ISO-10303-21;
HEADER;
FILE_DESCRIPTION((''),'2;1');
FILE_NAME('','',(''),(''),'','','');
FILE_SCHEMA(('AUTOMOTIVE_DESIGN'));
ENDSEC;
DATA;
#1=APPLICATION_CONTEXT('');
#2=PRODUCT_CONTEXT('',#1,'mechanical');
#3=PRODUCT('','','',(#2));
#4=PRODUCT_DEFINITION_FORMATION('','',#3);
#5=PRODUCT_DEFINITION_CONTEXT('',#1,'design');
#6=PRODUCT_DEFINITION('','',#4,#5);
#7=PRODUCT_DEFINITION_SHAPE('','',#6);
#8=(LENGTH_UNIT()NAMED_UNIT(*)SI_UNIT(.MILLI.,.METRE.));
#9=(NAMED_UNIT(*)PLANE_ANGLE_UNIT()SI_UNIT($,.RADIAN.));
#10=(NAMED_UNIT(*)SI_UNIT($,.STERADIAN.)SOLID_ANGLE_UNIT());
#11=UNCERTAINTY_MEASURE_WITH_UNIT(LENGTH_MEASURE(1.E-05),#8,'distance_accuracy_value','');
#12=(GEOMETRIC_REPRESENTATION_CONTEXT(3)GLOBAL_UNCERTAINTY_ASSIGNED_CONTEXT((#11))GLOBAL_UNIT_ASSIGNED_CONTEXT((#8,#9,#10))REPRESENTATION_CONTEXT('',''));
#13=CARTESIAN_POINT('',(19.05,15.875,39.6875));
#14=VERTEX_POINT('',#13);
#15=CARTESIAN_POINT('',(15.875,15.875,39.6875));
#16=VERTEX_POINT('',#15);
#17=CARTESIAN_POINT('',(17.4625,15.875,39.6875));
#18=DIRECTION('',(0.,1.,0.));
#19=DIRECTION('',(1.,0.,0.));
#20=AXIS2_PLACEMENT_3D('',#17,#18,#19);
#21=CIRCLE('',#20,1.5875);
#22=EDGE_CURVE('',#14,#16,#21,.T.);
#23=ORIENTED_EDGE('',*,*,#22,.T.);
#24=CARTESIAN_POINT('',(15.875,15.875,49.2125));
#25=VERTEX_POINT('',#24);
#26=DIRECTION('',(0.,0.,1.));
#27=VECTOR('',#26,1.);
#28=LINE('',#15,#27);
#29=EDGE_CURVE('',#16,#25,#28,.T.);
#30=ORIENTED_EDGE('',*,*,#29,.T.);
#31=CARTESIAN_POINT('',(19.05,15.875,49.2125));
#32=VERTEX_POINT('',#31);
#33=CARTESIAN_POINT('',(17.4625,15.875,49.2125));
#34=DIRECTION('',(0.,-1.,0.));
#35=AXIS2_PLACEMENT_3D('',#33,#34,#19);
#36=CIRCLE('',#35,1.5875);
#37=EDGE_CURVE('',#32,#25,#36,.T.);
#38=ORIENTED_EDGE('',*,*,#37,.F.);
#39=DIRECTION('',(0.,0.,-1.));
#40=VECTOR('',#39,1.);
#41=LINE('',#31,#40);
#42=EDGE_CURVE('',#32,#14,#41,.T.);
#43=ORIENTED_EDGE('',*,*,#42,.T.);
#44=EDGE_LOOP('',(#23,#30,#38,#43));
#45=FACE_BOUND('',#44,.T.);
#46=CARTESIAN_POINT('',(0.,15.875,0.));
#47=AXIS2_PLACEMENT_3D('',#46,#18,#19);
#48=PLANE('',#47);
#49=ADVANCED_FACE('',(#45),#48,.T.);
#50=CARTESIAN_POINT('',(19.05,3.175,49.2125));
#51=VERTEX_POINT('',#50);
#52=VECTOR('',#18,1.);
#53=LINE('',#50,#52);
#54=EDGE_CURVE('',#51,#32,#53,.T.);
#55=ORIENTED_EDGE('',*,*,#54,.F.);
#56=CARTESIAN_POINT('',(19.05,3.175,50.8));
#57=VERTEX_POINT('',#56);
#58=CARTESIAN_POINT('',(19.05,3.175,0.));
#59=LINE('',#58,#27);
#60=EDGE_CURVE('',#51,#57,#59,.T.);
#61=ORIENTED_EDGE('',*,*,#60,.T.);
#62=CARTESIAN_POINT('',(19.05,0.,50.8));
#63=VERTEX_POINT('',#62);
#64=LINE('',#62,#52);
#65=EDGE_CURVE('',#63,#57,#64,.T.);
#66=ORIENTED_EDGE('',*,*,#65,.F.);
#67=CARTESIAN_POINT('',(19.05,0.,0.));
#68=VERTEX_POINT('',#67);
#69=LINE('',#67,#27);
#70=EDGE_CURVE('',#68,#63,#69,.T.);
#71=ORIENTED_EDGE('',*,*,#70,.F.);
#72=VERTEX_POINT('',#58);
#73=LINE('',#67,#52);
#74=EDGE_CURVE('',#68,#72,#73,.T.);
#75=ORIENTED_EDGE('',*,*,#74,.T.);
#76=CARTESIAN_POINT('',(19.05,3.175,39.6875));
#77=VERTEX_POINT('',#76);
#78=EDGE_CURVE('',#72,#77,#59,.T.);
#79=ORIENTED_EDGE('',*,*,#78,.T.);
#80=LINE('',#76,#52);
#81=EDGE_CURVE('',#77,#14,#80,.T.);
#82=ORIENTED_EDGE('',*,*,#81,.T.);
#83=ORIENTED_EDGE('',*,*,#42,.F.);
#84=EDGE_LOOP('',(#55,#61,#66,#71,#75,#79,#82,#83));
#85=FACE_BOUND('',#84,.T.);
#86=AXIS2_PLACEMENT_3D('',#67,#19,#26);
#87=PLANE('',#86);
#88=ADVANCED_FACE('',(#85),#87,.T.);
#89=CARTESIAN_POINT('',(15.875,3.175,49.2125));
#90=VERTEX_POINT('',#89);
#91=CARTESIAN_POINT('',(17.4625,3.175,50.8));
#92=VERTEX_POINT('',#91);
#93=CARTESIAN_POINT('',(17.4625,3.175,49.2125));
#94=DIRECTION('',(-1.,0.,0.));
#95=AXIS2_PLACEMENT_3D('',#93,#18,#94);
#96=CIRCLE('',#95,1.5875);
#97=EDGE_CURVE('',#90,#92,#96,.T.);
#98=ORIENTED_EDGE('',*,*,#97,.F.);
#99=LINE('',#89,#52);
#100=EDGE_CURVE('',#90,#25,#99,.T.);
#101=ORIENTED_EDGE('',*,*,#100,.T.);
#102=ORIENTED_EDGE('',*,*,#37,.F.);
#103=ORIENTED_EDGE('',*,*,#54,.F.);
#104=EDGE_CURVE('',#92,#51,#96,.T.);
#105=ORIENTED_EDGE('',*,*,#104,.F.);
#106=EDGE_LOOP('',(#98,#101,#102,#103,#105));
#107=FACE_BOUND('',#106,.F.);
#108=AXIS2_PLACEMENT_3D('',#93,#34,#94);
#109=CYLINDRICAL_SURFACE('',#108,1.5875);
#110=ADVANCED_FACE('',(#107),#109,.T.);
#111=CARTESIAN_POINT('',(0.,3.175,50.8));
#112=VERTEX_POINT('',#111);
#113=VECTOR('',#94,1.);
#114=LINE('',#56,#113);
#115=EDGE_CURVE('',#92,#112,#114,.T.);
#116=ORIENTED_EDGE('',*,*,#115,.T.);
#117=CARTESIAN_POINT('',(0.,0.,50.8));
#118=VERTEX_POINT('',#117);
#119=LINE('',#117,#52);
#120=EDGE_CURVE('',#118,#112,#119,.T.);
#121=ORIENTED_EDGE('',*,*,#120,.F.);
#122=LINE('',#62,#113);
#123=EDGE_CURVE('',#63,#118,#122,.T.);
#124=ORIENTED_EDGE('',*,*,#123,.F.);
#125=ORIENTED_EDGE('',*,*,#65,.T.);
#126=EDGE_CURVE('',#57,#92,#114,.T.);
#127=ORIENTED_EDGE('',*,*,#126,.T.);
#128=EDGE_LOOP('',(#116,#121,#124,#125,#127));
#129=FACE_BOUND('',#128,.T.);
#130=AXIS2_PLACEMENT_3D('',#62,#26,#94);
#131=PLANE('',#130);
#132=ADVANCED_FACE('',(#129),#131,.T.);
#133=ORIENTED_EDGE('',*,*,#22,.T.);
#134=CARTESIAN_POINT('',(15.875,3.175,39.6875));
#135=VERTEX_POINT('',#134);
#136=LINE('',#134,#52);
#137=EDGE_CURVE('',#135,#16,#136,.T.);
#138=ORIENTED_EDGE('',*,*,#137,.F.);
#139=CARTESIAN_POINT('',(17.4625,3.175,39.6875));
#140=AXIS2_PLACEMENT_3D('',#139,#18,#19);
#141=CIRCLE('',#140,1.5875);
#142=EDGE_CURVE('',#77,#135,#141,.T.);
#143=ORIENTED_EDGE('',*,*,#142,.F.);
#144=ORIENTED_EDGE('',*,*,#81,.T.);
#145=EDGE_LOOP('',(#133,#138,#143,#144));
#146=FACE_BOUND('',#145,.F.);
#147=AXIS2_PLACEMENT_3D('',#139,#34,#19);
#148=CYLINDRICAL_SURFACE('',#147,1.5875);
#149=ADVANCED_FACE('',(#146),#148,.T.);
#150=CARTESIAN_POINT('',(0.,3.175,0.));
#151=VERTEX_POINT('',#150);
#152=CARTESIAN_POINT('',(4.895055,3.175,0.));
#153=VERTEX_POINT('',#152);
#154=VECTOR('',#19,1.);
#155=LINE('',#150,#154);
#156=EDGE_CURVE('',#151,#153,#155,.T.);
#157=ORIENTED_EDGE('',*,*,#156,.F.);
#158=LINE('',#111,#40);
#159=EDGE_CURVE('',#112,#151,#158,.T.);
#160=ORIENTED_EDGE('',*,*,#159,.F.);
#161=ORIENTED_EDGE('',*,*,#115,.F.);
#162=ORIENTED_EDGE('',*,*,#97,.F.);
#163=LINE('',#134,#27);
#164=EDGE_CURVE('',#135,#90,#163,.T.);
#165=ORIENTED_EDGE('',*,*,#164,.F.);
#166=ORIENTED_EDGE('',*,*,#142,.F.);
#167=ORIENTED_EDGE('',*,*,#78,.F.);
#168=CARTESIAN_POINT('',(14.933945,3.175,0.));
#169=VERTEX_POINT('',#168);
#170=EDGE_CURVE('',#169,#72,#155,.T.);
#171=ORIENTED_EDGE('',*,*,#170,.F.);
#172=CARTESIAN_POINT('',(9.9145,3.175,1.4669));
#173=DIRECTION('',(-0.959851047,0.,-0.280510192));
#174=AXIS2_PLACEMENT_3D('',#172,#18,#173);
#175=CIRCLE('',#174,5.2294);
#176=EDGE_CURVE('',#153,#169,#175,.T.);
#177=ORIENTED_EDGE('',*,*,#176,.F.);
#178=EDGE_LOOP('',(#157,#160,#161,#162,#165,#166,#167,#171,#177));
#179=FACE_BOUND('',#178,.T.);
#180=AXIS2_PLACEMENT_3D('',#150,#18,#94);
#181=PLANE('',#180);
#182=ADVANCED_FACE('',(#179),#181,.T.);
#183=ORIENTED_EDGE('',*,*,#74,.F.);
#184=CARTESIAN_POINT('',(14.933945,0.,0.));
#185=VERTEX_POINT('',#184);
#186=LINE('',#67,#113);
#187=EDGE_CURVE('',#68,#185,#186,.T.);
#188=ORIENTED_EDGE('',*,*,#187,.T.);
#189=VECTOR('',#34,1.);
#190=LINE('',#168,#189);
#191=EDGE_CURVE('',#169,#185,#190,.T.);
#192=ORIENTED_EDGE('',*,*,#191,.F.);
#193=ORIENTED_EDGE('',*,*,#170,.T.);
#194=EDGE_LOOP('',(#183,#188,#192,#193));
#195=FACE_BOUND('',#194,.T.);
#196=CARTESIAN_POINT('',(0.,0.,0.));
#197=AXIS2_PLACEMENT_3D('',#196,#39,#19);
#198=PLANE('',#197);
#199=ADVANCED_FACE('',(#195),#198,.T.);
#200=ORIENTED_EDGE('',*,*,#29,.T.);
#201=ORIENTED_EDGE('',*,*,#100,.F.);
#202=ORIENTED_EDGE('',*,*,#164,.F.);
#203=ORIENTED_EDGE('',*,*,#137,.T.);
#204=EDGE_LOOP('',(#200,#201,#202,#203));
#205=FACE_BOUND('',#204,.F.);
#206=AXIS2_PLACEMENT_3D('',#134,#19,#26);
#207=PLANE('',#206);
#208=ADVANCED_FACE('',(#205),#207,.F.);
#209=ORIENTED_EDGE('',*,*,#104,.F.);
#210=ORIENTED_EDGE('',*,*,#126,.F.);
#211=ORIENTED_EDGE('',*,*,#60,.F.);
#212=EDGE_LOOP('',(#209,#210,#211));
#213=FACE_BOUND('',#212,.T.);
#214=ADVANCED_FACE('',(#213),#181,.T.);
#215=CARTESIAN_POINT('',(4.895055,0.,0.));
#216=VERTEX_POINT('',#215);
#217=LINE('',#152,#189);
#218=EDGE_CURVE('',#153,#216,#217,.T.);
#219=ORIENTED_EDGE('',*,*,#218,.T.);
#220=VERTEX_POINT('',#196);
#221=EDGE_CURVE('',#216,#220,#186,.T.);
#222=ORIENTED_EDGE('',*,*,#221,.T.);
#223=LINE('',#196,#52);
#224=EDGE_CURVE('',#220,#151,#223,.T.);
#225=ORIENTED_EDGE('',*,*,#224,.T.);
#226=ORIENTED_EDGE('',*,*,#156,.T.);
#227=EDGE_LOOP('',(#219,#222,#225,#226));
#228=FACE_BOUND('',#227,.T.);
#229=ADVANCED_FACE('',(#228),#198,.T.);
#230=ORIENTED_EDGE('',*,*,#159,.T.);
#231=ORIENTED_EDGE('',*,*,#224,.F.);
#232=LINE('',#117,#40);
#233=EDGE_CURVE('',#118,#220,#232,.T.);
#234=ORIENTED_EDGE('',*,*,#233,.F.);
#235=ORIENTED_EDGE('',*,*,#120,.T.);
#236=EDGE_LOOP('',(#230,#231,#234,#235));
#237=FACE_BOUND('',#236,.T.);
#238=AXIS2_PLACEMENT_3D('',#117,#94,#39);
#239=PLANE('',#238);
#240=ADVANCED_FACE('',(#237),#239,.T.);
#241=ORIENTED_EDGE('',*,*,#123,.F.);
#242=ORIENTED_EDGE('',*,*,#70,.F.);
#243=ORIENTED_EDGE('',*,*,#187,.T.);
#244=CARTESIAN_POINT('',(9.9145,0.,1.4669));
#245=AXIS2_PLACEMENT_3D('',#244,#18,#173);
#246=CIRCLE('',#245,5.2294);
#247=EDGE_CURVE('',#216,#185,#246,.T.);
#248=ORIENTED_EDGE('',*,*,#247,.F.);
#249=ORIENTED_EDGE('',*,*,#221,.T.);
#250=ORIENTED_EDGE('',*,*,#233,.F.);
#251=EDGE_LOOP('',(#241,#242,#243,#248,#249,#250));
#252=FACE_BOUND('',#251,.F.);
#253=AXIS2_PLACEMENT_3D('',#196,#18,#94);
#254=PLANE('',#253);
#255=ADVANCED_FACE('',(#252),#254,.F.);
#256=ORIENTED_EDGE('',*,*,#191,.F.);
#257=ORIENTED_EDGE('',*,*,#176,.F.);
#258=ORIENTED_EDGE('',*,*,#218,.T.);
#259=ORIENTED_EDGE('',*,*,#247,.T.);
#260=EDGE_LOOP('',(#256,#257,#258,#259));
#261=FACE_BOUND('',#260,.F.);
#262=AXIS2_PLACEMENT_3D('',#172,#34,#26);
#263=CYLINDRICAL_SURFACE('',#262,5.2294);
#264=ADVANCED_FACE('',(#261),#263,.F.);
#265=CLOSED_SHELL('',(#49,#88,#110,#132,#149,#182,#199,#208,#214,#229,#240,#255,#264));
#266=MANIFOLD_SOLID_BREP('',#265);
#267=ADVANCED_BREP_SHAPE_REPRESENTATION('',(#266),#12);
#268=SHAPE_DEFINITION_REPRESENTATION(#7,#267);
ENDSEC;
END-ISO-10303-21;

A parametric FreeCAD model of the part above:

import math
import FreeCAD as App
import Part
import Sketcher
Q = App.Units.Quantity

doc = App.newDocument("Part")
body = doc.addObject("PartDesign::Body", "Body")

sketch1 = body.newObject("Sketcher::SketchObject", "Sketch")
sketch1.AttachmentSupport = (doc.getObject("XZ_Plane"), [""])
sketch1.MapMode = "FlatFace"
sketch1.addGeometry(Part.LineSegment(App.Vector(0, 0, 0), App.Vector(0, 50.8, 0)), False)
sketch1.addGeometry(Part.LineSegment(App.Vector(0, 50.8, 0), App.Vector(19.05, 50.8, 0)), False)
sketch1.addGeometry(Part.LineSegment(App.Vector(19.05, 50.8, 0), App.Vector(19.05, 0, 0)), False)
sketch1.addGeometry(Part.LineSegment(App.Vector(19.05, 0, 0), App.Vector(0, 0, 0)), False)
sketch1.addConstraint(Sketcher.Constraint("Coincident", 0, 2, 1, 1))
sketch1.addConstraint(Sketcher.Constraint("Coincident", 1, 2, 2, 1))
sketch1.addConstraint(Sketcher.Constraint("Coincident", 2, 2, 3, 1))
sketch1.addConstraint(Sketcher.Constraint("Coincident", 3, 2, 0, 1))
sketch1.addConstraint(Sketcher.Constraint("Vertical", 0))
sketch1.addConstraint(Sketcher.Constraint("Horizontal", 1))
sketch1.addConstraint(Sketcher.Constraint("Vertical", 2))
sketch1.addConstraint(Sketcher.Constraint("Horizontal", 3))
sketch1.addConstraint(Sketcher.Constraint("Coincident", 3, 2, -1, 1))
sketch1.addConstraint(Sketcher.Constraint("DistanceY", 0, 1, 0, 2, Q("2 in")))
sketch1.addConstraint(Sketcher.Constraint("DistanceX", 1, 1, 1, 2, Q("0.75 in")))
pad1 = body.newObject("PartDesign::Pad", "Pad")
pad1.Profile = sketch1
pad1.Length = Q("0.125 in")
pad1.Reversed = True

sketch2 = body.newObject("Sketcher::SketchObject", "Sketch001")
sketch2.AttachmentSupport = (doc.getObject("XZ_Plane"), [""])
sketch2.MapMode = "FlatFace"
sketch2.AttachmentOffset = App.Placement(App.Vector(0, 0, -0.125 * 25.4), App.Rotation())
sketch2.addGeometry(Part.ArcOfCircle(Part.Circle(App.Vector(17.4625, 49.2125, 0), App.Vector(0, 0, 1), 1.5875), math.radians(0), math.radians(180)), False)
sketch2.addGeometry(Part.LineSegment(App.Vector(19.05, 49.2125, 0), App.Vector(19.05, 39.6875, 0)), False)
sketch2.addGeometry(Part.ArcOfCircle(Part.Circle(App.Vector(17.4625, 39.6875, 0), App.Vector(0, 0, 1), 1.5875), math.radians(180), math.radians(360)), False)
sketch2.addGeometry(Part.LineSegment(App.Vector(15.875, 39.6875, 0), App.Vector(15.875, 49.2125, 0)), False)
sketch2.addConstraint(Sketcher.Constraint("Tangent", 0, 1, 1, 1))
sketch2.addConstraint(Sketcher.Constraint("Tangent", 1, 2, 2, 2))
sketch2.addConstraint(Sketcher.Constraint("Tangent", 2, 1, 3, 1))
sketch2.addConstraint(Sketcher.Constraint("Tangent", 3, 2, 0, 2))
sketch2.addConstraint(Sketcher.Constraint("Vertical", 1))
sketch2.addConstraint(Sketcher.Constraint("Vertical", 3))
sketch2.addConstraint(Sketcher.Constraint("Radius", 0, Q("0.0625 in")))
sketch2.addConstraint(Sketcher.Constraint("DistanceY", 1, 2, 1, 1, Q("0.375 in")))
sketch2.addConstraint(Sketcher.Constraint("DistanceX", -1, 1, 0, 1, Q("0.75 in")))
sketch2.addConstraint(Sketcher.Constraint("DistanceY", -1, 1, 0, 3, Q("1.9375 in")))
pad2 = body.newObject("PartDesign::Pad", "Pad001")
pad2.Profile = sketch2
pad2.Length = Q("0.5 in")
pad2.Reversed = True

sketch3 = body.newObject("Sketcher::SketchObject", "Sketch002")
sketch3.AttachmentSupport = (doc.getObject("XZ_Plane"), [""])
sketch3.MapMode = "FlatFace"
sketch3.AttachmentOffset = App.Placement(App.Vector(0, 0, -0.125 * 25.4), App.Rotation())
sketch3.addGeometry(Part.Circle(App.Vector(9.9145, 1.4669, 0), App.Vector(0, 0, 1), 5.2294), False)
sketch3.addConstraint(Sketcher.Constraint("Diameter", 0, 10.4588))
sketch3.addConstraint(Sketcher.Constraint("DistanceX", -1, 1, 0, 3, 9.9145))
sketch3.addConstraint(Sketcher.Constraint("DistanceY", -1, 1, 0, 3, 1.467))
doc.recompute()
hole = body.newObject("PartDesign::Hole", "Hole")
hole.Profile = sketch3
hole.ThreadType = "None"
hole.Diameter = 10.4588
hole.DepthType = "ThroughAll"
hole.Reversed = True

doc.recompute()
